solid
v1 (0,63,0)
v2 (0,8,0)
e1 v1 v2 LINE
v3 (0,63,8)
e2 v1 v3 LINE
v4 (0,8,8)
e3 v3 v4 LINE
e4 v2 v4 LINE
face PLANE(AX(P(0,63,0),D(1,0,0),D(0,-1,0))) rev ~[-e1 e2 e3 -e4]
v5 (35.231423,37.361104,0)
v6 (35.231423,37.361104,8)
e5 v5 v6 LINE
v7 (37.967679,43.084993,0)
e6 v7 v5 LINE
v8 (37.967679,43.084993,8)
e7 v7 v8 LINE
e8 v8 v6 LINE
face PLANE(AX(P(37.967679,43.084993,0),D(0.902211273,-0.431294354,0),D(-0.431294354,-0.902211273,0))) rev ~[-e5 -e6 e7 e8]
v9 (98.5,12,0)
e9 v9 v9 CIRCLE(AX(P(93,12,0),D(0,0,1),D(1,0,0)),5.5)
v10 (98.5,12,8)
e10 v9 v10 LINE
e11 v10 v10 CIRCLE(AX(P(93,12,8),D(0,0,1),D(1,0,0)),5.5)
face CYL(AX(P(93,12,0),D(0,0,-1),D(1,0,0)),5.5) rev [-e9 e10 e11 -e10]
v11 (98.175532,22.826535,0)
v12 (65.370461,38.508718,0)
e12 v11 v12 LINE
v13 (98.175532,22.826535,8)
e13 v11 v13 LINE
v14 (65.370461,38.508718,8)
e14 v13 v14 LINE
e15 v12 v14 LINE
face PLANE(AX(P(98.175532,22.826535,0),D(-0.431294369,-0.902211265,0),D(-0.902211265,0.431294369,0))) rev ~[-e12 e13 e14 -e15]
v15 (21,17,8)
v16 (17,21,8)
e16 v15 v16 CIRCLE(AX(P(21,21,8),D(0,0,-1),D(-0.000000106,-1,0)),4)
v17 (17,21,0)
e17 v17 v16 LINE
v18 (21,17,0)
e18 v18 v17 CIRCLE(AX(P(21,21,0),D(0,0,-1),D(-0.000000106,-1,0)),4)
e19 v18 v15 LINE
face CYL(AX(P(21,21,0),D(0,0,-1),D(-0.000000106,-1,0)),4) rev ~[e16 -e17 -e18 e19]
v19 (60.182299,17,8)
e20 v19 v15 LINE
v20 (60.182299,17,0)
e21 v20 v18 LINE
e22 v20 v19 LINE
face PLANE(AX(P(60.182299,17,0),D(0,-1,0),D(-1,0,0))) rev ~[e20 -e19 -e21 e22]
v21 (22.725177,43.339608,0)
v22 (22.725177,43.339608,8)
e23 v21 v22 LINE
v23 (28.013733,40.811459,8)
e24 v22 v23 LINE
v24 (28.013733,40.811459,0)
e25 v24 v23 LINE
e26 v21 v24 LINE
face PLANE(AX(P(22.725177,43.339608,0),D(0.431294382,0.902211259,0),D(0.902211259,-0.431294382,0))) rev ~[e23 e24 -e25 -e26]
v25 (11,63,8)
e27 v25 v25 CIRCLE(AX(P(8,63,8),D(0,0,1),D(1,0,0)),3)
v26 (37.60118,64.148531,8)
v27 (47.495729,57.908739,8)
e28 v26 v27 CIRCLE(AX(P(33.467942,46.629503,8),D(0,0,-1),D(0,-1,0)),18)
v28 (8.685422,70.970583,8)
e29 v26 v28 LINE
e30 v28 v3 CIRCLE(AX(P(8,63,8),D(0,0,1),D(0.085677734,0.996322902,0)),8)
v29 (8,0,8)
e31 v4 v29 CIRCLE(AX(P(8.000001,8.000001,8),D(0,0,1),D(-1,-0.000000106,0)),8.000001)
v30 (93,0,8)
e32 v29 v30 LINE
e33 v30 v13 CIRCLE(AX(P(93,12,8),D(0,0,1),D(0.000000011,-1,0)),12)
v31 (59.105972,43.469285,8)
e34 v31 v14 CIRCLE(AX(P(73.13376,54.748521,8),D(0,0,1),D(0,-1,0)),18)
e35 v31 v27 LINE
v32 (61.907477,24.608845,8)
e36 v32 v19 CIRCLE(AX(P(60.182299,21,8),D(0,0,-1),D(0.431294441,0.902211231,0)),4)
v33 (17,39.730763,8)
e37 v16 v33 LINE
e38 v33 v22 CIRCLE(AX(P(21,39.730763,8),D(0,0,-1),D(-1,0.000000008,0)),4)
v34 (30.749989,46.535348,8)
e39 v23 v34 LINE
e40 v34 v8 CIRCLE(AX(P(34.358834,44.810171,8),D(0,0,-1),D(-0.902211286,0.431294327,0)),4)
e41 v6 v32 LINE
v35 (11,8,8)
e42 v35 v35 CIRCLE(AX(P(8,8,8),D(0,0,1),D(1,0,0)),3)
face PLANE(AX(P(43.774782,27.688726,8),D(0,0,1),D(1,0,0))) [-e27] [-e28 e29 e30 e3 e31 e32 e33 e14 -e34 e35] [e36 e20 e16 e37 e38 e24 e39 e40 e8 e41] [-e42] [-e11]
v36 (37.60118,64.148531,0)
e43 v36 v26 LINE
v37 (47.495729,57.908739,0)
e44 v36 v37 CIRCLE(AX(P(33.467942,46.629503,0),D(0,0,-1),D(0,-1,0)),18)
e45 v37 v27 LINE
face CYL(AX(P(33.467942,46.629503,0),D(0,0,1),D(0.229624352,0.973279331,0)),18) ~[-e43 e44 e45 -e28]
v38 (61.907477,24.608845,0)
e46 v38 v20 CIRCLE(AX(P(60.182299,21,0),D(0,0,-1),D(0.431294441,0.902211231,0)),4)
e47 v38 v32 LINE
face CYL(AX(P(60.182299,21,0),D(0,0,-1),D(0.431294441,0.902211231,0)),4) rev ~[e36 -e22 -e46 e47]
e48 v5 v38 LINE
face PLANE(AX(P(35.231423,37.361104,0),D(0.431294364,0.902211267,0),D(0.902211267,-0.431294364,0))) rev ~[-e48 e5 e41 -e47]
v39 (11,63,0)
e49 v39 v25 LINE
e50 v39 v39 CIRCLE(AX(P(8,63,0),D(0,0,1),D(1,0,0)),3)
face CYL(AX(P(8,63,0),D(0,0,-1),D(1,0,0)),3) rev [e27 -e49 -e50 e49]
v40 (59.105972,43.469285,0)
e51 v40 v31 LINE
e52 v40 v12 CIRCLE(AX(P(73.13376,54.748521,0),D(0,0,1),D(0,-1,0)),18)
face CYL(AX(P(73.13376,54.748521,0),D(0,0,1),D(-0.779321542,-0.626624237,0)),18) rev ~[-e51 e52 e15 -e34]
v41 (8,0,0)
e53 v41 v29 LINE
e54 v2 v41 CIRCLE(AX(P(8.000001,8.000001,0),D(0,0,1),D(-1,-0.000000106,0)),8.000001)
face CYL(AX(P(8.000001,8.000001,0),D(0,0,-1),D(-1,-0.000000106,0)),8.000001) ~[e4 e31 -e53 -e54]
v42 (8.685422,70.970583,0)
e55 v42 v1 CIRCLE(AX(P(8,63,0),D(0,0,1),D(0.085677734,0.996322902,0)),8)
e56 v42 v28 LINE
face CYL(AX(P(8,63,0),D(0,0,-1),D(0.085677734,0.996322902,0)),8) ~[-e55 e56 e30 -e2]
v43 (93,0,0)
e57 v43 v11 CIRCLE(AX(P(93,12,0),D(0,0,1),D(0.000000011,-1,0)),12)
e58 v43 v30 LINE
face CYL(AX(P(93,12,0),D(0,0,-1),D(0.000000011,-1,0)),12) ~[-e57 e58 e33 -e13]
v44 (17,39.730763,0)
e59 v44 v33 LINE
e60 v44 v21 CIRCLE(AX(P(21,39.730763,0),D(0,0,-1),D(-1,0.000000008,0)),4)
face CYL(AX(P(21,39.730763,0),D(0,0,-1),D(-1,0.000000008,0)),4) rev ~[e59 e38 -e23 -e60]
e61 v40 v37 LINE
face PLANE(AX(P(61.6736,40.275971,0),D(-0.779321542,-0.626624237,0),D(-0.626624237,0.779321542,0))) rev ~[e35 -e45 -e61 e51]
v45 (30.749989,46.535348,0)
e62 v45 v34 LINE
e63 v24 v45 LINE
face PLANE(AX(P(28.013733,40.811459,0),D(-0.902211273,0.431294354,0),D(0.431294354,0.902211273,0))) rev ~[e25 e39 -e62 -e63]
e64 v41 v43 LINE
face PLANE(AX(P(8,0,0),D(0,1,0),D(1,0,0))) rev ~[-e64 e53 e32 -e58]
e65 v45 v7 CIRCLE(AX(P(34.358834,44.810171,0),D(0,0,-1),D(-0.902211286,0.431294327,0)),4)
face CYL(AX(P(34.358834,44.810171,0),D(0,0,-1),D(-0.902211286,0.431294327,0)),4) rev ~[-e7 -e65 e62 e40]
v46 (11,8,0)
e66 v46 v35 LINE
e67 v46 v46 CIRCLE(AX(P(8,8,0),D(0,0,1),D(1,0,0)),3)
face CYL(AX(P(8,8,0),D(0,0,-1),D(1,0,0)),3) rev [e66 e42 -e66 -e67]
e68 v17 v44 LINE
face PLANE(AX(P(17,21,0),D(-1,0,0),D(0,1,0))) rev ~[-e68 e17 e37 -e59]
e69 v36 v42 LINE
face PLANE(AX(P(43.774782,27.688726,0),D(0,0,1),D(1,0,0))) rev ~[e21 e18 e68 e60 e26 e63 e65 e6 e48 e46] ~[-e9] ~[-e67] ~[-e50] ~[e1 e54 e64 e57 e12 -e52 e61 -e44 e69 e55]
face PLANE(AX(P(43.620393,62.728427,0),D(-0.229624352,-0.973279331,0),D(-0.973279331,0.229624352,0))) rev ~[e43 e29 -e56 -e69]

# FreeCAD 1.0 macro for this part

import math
import FreeCAD as App
import Part
import Sketcher
from FreeCAD import Vector


def edges_at(feature, points):
    """Names of the edges that pass closest to the given points."""
    edges = feature.Shape.Edges
    near = lambda p: min(range(len(edges)), key=lambda i: edges[i].distToShape(Part.Vertex(*p))[0])
    return sorted({f"Edge{near(p) + 1}" for p in points})

doc = App.newDocument("Part")
body = doc.addObject("PartDesign::Body", "Body")

# Sketch on XY plane
sketch1 = doc.addObject("Sketcher::SketchObject", "Sketch")
body.addObject(sketch1)
sketch1.AttachmentSupport = (doc.XY_Plane, [""])
sketch1.MapMode = "FlatFace"
sketch1.addGeometry([
    Part.ArcOfCircle(Part.Circle(Vector(8, 63, 0), Vector(0, 0, 1), 8), math.radians(85.085002), math.radians(179.999998)),  # 0
    Part.LineSegment(Vector(0, 63, 0), Vector(0, 8, 0)),  # 1
    Part.ArcOfCircle(Part.Circle(Vector(8.000001, 8.000001, 0), Vector(0, 0, 1), 8.000001), math.radians(-179.999994), math.radians(-90.000006)),  # 2
    Part.LineSegment(Vector(8, 0, 0), Vector(93, 0, 0)),  # 3
    Part.ArcOfCircle(Part.Circle(Vector(93, 12, 0), Vector(0, 0, 1), 12), math.radians(-89.999999), math.radians(64.450269)),  # 4
    Part.LineSegment(Vector(98.175532, 22.826535, 0), Vector(61.6736, 40.275971, 0)),  # 5
    Part.LineSegment(Vector(61.6736, 40.275971, 0), Vector(43.620393, 62.728427, 0)),  # 6
    Part.LineSegment(Vector(43.620393, 62.728427, 0), Vector(8.685422, 70.970583, 0)),  # 7
    Part.Circle(Vector(8, 8, 0), Vector(0, 0, 1), 3),  # 8
    Part.ArcOfCircle(Part.Circle(Vector(21, 21, 0), Vector(0, 0, 1), 4), math.radians(-179.999994), math.radians(-90.000006)),  # 9
    Part.LineSegment(Vector(17, 21, 0), Vector(17, 39.730763, 0)),  # 10
    Part.ArcOfCircle(Part.Circle(Vector(21, 39.730763, 0), Vector(0, 0, 1), 4), math.radians(64.450272), math.radians(180)),  # 11
    Part.LineSegment(Vector(22.725177, 43.339608, 0), Vector(28.013733, 40.811459, 0)),  # 12
    Part.LineSegment(Vector(28.013733, 40.811459, 0), Vector(30.749989, 46.535348, 0)),  # 13
    Part.ArcOfCircle(Part.Circle(Vector(34.358834, 44.810171, 0), Vector(0, 0, 1), 4), math.radians(-25.549736), math.radians(154.450271)),  # 14
    Part.LineSegment(Vector(37.967679, 43.084993, 0), Vector(35.231423, 37.361104, 0)),  # 15
    Part.LineSegment(Vector(35.231423, 37.361104, 0), Vector(61.907477, 24.608845, 0)),  # 16
    Part.ArcOfCircle(Part.Circle(Vector(60.182299, 21, 0), Vector(0, 0, 1), 4), math.radians(-90.000003), math.radians(64.450263)),  # 17
    Part.LineSegment(Vector(60.182299, 17, 0), Vector(21, 17, 0)),  # 18
    Part.Circle(Vector(93, 12, 0), Vector(0, 0, 1), 5.5),  # 19
    Part.Circle(Vector(8, 63, 0), Vector(0, 0, 1), 3),  # 20
], False)
sketch1.addConstraint([
    Sketcher.Constraint("Tangent", 0, 2, 1, 1),
    Sketcher.Constraint("Tangent", 1, 2, 2, 1),
    Sketcher.Constraint("Tangent", 2, 2, 3, 1),
    Sketcher.Constraint("Tangent", 3, 2, 4, 1),
    Sketcher.Constraint("Tangent", 4, 2, 5, 1),
    Sketcher.Constraint("Coincident", 5, 2, 6, 1),
    Sketcher.Constraint("Coincident", 6, 2, 7, 1),
    Sketcher.Constraint("Coincident", 7, 2, 0, 1),
    Sketcher.Constraint("Tangent", 9, 1, 10, 1),
    Sketcher.Constraint("Tangent", 10, 2, 11, 2),
    Sketcher.Constraint("Tangent", 11, 1, 12, 1),
    Sketcher.Constraint("Coincident", 12, 2, 13, 1),
    Sketcher.Constraint("Tangent", 13, 2, 14, 2),
    Sketcher.Constraint("Tangent", 14, 1, 15, 1),
    Sketcher.Constraint("Coincident", 15, 2, 16, 1),
    Sketcher.Constraint("Tangent", 16, 2, 17, 2),
    Sketcher.Constraint("Tangent", 17, 1, 18, 1),
    Sketcher.Constraint("Tangent", 18, 2, 9, 2),
    Sketcher.Constraint("Vertical", 1),
    Sketcher.Constraint("Horizontal", 3),
    Sketcher.Constraint("Vertical", 10),
    Sketcher.Constraint("Horizontal", 18),
    Sketcher.Constraint("Coincident", 8, 3, 2, 3),
    Sketcher.Constraint("Coincident", 19, 3, 4, 3),
    Sketcher.Constraint("Coincident", 20, 3, 0, 3),
    Sketcher.Constraint("Equal", 0, 2),
    Sketcher.Constraint("Equal", 9, 11),
    Sketcher.Constraint("Equal", 11, 14),
    Sketcher.Constraint("Equal", 14, 17),
    Sketcher.Constraint("Equal", 8, 20),
    Sketcher.Constraint("PointOnObject", 0, 2, -2),
    Sketcher.Constraint("PointOnObject", 2, 2, -1),
    Sketcher.Constraint("Parallel", 5, 12),
    Sketcher.Constraint("Perpendicular", 12, 13),
    Sketcher.Constraint("Parallel", 13, 15),
    Sketcher.Constraint("Perpendicular", 15, 16),
    Sketcher.Constraint("Equal", 13, 15),
    Sketcher.Constraint("Diameter", 8, 6.0),
    Sketcher.Constraint("Diameter", 19, 11.0),
    Sketcher.Constraint("Radius", 0, 8.0),
    Sketcher.Constraint("Radius", 4, 12.0),
    Sketcher.Constraint("Radius", 9, 4.0),
    Sketcher.Constraint("DistanceX", 3, 1, 3, 2, 85.0),
    Sketcher.Constraint("DistanceY", 1, 2, 1, 1, 55.0),
    Sketcher.Constraint("DistanceX", -1, 1, 9, 3, 21.0),
    Sketcher.Constraint("DistanceY", -1, 1, 9, 3, 21.0),
    Sketcher.Constraint("DistanceX", 18, 2, 18, 1, 39.182299),
    Sketcher.Constraint("DistanceX", -1, 1, 5, 2, 61.6736),
    Sketcher.Constraint("DistanceY", 5, 2, 14, 3, 4.5342),
    Sketcher.Constraint("DistanceX", 12, 2, 14, 3, 6.345101),
    Sketcher.Constraint("Distance", 6, 28.81026),
    Sketcher.Constraint("Distance", 12, 5.861771),
    Sketcher.Constraint("DistanceX", 14, 3, 6, 2, 9.261559),
    Sketcher.Constraint("DistanceX", 0, 3, 7, 2, 0.685422),
])
pad1 = doc.addObject("PartDesign::Pad", "Pad")
body.addObject(pad1)
pad1.Profile = sketch1
pad1.Length = 8
doc.recompute()

fillet = doc.addObject("PartDesign::Fillet", "Fillet")
body.addObject(fillet)
fillet.Base = (pad1, edges_at(pad1, [(43.62, 62.728, 4), (61.674, 40.276, 4)]))
fillet.Radius = 18

doc.recompute()
